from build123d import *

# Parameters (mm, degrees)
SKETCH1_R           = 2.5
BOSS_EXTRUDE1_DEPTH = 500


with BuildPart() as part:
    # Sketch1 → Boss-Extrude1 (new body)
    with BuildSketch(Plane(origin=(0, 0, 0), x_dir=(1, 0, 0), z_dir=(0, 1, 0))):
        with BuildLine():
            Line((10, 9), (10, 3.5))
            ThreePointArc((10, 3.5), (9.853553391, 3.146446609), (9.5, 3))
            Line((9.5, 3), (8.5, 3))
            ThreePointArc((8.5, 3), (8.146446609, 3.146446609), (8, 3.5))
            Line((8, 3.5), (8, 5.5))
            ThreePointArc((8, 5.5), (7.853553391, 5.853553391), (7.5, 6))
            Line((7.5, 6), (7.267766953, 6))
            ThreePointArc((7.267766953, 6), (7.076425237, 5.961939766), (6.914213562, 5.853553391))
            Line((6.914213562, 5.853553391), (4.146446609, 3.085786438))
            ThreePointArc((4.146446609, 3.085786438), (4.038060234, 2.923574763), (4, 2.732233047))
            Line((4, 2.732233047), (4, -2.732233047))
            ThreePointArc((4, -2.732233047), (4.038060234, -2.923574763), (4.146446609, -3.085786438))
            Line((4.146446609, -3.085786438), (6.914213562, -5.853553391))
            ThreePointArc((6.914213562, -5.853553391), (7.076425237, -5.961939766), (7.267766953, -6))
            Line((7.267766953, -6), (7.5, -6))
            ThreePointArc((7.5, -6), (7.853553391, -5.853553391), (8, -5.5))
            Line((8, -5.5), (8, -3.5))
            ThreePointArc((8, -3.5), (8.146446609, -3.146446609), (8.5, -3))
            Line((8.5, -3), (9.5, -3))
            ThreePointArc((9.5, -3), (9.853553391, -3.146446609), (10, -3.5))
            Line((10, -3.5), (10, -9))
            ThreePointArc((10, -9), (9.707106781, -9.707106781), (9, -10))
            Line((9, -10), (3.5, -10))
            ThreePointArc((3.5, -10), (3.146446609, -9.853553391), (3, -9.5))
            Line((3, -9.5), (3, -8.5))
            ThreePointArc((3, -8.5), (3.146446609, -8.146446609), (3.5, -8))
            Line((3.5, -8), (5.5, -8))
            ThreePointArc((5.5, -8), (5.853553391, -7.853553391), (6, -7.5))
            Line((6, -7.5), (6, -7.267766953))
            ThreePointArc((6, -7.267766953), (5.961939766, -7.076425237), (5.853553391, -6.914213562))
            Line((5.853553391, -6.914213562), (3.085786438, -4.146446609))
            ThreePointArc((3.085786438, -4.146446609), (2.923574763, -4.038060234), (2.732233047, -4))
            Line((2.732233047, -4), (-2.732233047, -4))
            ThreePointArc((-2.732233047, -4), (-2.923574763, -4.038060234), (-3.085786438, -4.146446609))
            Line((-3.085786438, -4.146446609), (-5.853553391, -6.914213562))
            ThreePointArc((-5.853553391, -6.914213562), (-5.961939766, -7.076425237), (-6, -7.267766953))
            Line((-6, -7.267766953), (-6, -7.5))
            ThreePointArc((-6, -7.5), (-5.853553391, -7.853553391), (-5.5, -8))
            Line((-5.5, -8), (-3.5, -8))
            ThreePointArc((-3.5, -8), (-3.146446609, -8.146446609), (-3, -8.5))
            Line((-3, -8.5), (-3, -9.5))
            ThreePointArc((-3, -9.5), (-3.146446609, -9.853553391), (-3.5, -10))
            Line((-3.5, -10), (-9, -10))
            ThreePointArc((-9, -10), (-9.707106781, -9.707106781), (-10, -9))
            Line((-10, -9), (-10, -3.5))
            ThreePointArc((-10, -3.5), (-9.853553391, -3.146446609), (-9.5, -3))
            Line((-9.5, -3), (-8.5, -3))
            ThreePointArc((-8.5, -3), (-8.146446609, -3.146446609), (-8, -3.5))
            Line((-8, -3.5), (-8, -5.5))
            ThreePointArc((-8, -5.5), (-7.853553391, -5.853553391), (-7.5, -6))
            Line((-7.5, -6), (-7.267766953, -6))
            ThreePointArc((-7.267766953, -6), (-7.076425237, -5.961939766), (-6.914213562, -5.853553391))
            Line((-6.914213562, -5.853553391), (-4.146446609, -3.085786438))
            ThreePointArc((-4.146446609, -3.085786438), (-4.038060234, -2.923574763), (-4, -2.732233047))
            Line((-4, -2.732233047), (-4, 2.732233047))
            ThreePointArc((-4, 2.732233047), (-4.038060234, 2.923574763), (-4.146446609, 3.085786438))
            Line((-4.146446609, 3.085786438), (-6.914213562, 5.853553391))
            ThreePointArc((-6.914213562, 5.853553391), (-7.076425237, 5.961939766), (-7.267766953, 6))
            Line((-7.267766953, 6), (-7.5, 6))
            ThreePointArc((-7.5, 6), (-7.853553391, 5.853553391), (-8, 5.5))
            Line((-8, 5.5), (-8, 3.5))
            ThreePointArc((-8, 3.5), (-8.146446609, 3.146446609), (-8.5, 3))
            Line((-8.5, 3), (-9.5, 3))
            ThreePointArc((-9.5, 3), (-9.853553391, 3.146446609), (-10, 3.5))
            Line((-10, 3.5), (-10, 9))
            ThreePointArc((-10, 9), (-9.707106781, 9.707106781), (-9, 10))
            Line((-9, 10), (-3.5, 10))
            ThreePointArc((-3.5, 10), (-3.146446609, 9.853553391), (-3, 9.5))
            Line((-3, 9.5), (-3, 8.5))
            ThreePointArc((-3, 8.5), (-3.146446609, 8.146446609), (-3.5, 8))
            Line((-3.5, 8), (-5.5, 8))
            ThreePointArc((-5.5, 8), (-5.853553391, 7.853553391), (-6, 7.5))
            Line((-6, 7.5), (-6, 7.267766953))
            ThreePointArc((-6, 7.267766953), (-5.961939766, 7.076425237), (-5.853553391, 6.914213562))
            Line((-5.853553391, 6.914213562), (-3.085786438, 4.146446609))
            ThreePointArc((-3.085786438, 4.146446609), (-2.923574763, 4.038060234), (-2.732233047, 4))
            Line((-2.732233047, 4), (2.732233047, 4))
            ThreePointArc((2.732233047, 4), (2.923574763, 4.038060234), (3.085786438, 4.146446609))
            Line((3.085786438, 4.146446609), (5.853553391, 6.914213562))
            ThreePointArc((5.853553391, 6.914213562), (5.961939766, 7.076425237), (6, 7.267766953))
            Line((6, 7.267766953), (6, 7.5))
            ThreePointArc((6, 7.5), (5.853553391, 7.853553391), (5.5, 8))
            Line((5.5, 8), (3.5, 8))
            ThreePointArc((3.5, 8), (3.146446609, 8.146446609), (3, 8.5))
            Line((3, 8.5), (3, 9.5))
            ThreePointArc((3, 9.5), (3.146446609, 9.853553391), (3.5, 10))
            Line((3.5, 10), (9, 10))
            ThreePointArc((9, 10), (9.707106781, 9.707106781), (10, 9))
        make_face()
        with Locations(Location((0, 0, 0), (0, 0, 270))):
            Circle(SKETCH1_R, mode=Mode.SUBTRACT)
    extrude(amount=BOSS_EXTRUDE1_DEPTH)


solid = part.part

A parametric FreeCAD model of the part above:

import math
import FreeCAD as App
import Part
import Sketcher

doc = App.newDocument("Part")
body = doc.addObject("PartDesign::Body", "Body")

# Sketch on XZ plane
sketch1 = body.newObject("Sketcher::SketchObject", "Sketch")
sketch1.AttachmentSupport = (doc.getObject("XZ_Plane"), [""])
sketch1.MapMode = "FlatFace"
sketch1.addGeometry([
    Part.LineSegment(App.Vector(10, -3.5, 0), App.Vector(10, -9, 0)),  # 0
    Part.ArcOfCircle(Part.Circle(App.Vector(9, -9, 0), App.Vector(0, 0, 1), 1), math.radians(-90), math.radians(0)),  # 1
    Part.LineSegment(App.Vector(9, -10, 0), App.Vector(3.5, -10, 0)),  # 2
    Part.ArcOfCircle(Part.Circle(App.Vector(3.5, -9.5, 0), App.Vector(0, 0, 1), 0.5), math.radians(180), math.radians(270)),  # 3
    Part.LineSegment(App.Vector(3, -9.5, 0), App.Vector(3, -8.5, 0)),  # 4
    Part.ArcOfCircle(Part.Circle(App.Vector(3.5, -8.5, 0), App.Vector(0, 0, 1), 0.5), math.radians(90), math.radians(180)),  # 5
    Part.LineSegment(App.Vector(3.5, -8, 0), App.Vector(5.5, -8, 0)),  # 6
    Part.ArcOfCircle(Part.Circle(App.Vector(5.5, -7.5, 0), App.Vector(0, 0, 1), 0.5), math.radians(-90), math.radians(0)),  # 7
    Part.LineSegment(App.Vector(6, -7.5, 0), App.Vector(6, -7.27, 0)),  # 8
    Part.ArcOfCircle(Part.Circle(App.Vector(5.5, -7.27, 0), App.Vector(0, 0, 1), 0.5), math.radians(0), math.radians(45)),  # 9
    Part.LineSegment(App.Vector(5.85, -6.91, 0), App.Vector(3.09, -4.15, 0)),  # 10
    Part.ArcOfCircle(Part.Circle(App.Vector(2.73, -4.5, 0), App.Vector(0, 0, 1), 0.5), math.radians(45), math.radians(90)),  # 11
    Part.LineSegment(App.Vector(2.73, -4, 0), App.Vector(-2.73, -4, 0)),  # 12
    Part.ArcOfCircle(Part.Circle(App.Vector(-2.73, -4.5, 0), App.Vector(0, 0, 1), 0.5), math.radians(90), math.radians(135)),  # 13
    Part.LineSegment(App.Vector(-3.09, -4.15, 0), App.Vector(-5.85, -6.91, 0)),  # 14
    Part.ArcOfCircle(Part.Circle(App.Vector(-5.5, -7.27, 0), App.Vector(0, 0, 1), 0.5), math.radians(135), math.radians(180)),  # 15
    Part.LineSegment(App.Vector(-6, -7.27, 0), App.Vector(-6, -7.5, 0)),  # 16
    Part.ArcOfCircle(Part.Circle(App.Vector(-5.5, -7.5, 0), App.Vector(0, 0, 1), 0.5), math.radians(180), math.radians(270)),  # 17
    Part.LineSegment(App.Vector(-5.5, -8, 0), App.Vector(-3.5, -8, 0)),  # 18
    Part.ArcOfCircle(Part.Circle(App.Vector(-3.5, -8.5, 0), App.Vector(0, 0, 1), 0.5), math.radians(0), math.radians(90)),  # 19
    Part.LineSegment(App.Vector(-3, -8.5, 0), App.Vector(-3, -9.5, 0)),  # 20
    Part.ArcOfCircle(Part.Circle(App.Vector(-3.5, -9.5, 0), App.Vector(0, 0, 1), 0.5), math.radians(-90), math.radians(0)),  # 21
    Part.LineSegment(App.Vector(-3.5, -10, 0), App.Vector(-9, -10, 0)),  # 22
    Part.ArcOfCircle(Part.Circle(App.Vector(-9, -9, 0), App.Vector(0, 0, 1), 1), math.radians(-180), math.radians(-90)),  # 23
    Part.LineSegment(App.Vector(-10, -9, 0), App.Vector(-10, -3.5, 0)),  # 24
    Part.ArcOfCircle(Part.Circle(App.Vector(-9.5, -3.5, 0), App.Vector(0, 0, 1), 0.5), math.radians(90), math.radians(180)),  # 25
    Part.LineSegment(App.Vector(-9.5, -3, 0), App.Vector(-8.5, -3, 0)),  # 26
    Part.ArcOfCircle(Part.Circle(App.Vector(-8.5, -3.5, 0), App.Vector(0, 0, 1), 0.5), math.radians(0), math.radians(90)),  # 27
    Part.LineSegment(App.Vector(-8, -3.5, 0), App.Vector(-8, -5.5, 0)),  # 28
    Part.ArcOfCircle(Part.Circle(App.Vector(-7.5, -5.5, 0), App.Vector(0, 0, 1), 0.5), math.radians(180), math.radians(270)),  # 29
    Part.LineSegment(App.Vector(-7.5, -6, 0), App.Vector(-7.27, -6, 0)),  # 30
    Part.ArcOfCircle(Part.Circle(App.Vector(-7.27, -5.5, 0), App.Vector(0, 0, 1), 0.5), math.radians(-90), math.radians(-45)),  # 31
    Part.LineSegment(App.Vector(-6.91, -5.85, 0), App.Vector(-4.15, -3.09, 0)),  # 32
    Part.ArcOfCircle(Part.Circle(App.Vector(-4.5, -2.73, 0), App.Vector(0, 0, 1), 0.5), math.radians(-45), math.radians(0)),  # 33
    Part.LineSegment(App.Vector(-4, -2.73, 0), App.Vector(-4, 2.73, 0)),  # 34
    Part.ArcOfCircle(Part.Circle(App.Vector(-4.5, 2.73, 0), App.Vector(0, 0, 1), 0.5), math.radians(0), math.radians(45)),  # 35
    Part.LineSegment(App.Vector(-4.15, 3.09, 0), App.Vector(-6.91, 5.85, 0)),  # 36
    Part.ArcOfCircle(Part.Circle(App.Vector(-7.27, 5.5, 0), App.Vector(0, 0, 1), 0.5), math.radians(45), math.radians(90)),  # 37
    Part.LineSegment(App.Vector(-7.27, 6, 0), App.Vector(-7.5, 6, 0)),  # 38
    Part.ArcOfCircle(Part.Circle(App.Vector(-7.5, 5.5, 0), App.Vector(0, 0, 1), 0.5), math.radians(90), math.radians(180)),  # 39
    Part.LineSegment(App.Vector(-8, 5.5, 0), App.Vector(-8, 3.5, 0)),  # 40
    Part.ArcOfCircle(Part.Circle(App.Vector(-8.5, 3.5, 0), App.Vector(0, 0, 1), 0.5), math.radians(-90), math.radians(0)),  # 41
    Part.LineSegment(App.Vector(-8.5, 3, 0), App.Vector(-9.5, 3, 0)),  # 42
    Part.ArcOfCircle(Part.Circle(App.Vector(-9.5, 3.5, 0), App.Vector(0, 0, 1), 0.5), math.radians(180), math.radians(270)),  # 43
    Part.LineSegment(App.Vector(-10, 3.5, 0), App.Vector(-10, 9, 0)),  # 44
    Part.ArcOfCircle(Part.Circle(App.Vector(-9, 9, 0), App.Vector(0, 0, 1), 1), math.radians(90), math.radians(180)),  # 45
    Part.LineSegment(App.Vector(-9, 10, 0), App.Vector(-3.5, 10, 0)),  # 46
    Part.ArcOfCircle(Part.Circle(App.Vector(-3.5, 9.5, 0), App.Vector(0, 0, 1), 0.5), math.radians(0), math.radians(90)),  # 47
    Part.LineSegment(App.Vector(-3, 9.5, 0), App.Vector(-3, 8.5, 0)),  # 48
    Part.ArcOfCircle(Part.Circle(App.Vector(-3.5, 8.5, 0), App.Vector(0, 0, 1), 0.5), math.radians(-90), math.radians(0)),  # 49
    Part.LineSegment(App.Vector(-3.5, 8, 0), App.Vector(-5.5, 8, 0)),  # 50
    Part.ArcOfCircle(Part.Circle(App.Vector(-5.5, 7.5, 0), App.Vector(0, 0, 1), 0.5), math.radians(90), math.radians(180)),  # 51
    Part.LineSegment(App.Vector(-6, 7.5, 0), App.Vector(-6, 7.27, 0)),  # 52
    Part.ArcOfCircle(Part.Circle(App.Vector(-5.5, 7.27, 0), App.Vector(0, 0, 1), 0.5), math.radians(-180), math.radians(-135)),  # 53
    Part.LineSegment(App.Vector(-5.85, 6.91, 0), App.Vector(-3.09, 4.15, 0)),  # 54
    Part.ArcOfCircle(Part.Circle(App.Vector(-2.73, 4.5, 0), App.Vector(0, 0, 1), 0.5), math.radians(-135), math.radians(-90)),  # 55
    Part.LineSegment(App.Vector(-2.73, 4, 0), App.Vector(2.73, 4, 0)),  # 56
    Part.ArcOfCircle(Part.Circle(App.Vector(2.73, 4.5, 0), App.Vector(0, 0, 1), 0.5), math.radians(-90), math.radians(-45)),  # 57
    Part.LineSegment(App.Vector(3.09, 4.15, 0), App.Vector(5.85, 6.91, 0)),  # 58
    Part.ArcOfCircle(Part.Circle(App.Vector(5.5, 7.27, 0), App.Vector(0, 0, 1), 0.5), math.radians(-45), math.radians(0)),  # 59
    Part.LineSegment(App.Vector(6, 7.27, 0), App.Vector(6, 7.5, 0)),  # 60
    Part.ArcOfCircle(Part.Circle(App.Vector(5.5, 7.5, 0), App.Vector(0, 0, 1), 0.5), math.radians(0), math.radians(90)),  # 61
    Part.LineSegment(App.Vector(5.5, 8, 0), App.Vector(3.5, 8, 0)),  # 62
    Part.ArcOfCircle(Part.Circle(App.Vector(3.5, 8.5, 0), App.Vector(0, 0, 1), 0.5), math.radians(180), math.radians(270)),  # 63
    Part.LineSegment(App.Vector(3, 8.5, 0), App.Vector(3, 9.5, 0)),  # 64
    Part.ArcOfCircle(Part.Circle(App.Vector(3.5, 9.5, 0), App.Vector(0, 0, 1), 0.5), math.radians(90), math.radians(180)),  # 65
    Part.LineSegment(App.Vector(3.5, 10, 0), App.Vector(9, 10, 0)),  # 66
    Part.ArcOfCircle(Part.Circle(App.Vector(9, 9, 0), App.Vector(0, 0, 1), 1), math.radians(0), math.radians(90)),  # 67
    Part.LineSegment(App.Vector(10, 9, 0), App.Vector(10, 3.5, 0)),  # 68
    Part.ArcOfCircle(Part.Circle(App.Vector(9.5, 3.5, 0), App.Vector(0, 0, 1), 0.5), math.radians(-90), math.radians(0)),  # 69
    Part.LineSegment(App.Vector(9.5, 3, 0), App.Vector(8.5, 3, 0)),  # 70
    Part.ArcOfCircle(Part.Circle(App.Vector(8.5, 3.5, 0), App.Vector(0, 0, 1), 0.5), math.radians(180), math.radians(270)),  # 71
    Part.LineSegment(App.Vector(8, 3.5, 0), App.Vector(8, 5.5, 0)),  # 72
    Part.ArcOfCircle(Part.Circle(App.Vector(7.5, 5.5, 0), App.Vector(0, 0, 1), 0.5), math.radians(0), math.radians(90)),  # 73
    Part.LineSegment(App.Vector(7.5, 6, 0), App.Vector(7.27, 6, 0)),  # 74
    Part.ArcOfCircle(Part.Circle(App.Vector(7.27, 5.5, 0), App.Vector(0, 0, 1), 0.5), math.radians(90), math.radians(135)),  # 75
    Part.LineSegment(App.Vector(6.91, 5.85, 0), App.Vector(4.15, 3.09, 0)),  # 76
    Part.ArcOfCircle(Part.Circle(App.Vector(4.5, 2.73, 0), App.Vector(0, 0, 1), 0.5), math.radians(135), math.radians(180)),  # 77
    Part.LineSegment(App.Vector(4, 2.73, 0), App.Vector(4, -2.73, 0)),  # 78
    Part.ArcOfCircle(Part.Circle(App.Vector(4.5, -2.73, 0), App.Vector(0, 0, 1), 0.5), math.radians(-180), math.radians(-135)),  # 79
    Part.LineSegment(App.Vector(4.15, -3.09, 0), App.Vector(6.91, -5.85, 0)),  # 80
    Part.ArcOfCircle(Part.Circle(App.Vector(7.27, -5.5, 0), App.Vector(0, 0, 1), 0.5), math.radians(-135), math.radians(-90)),  # 81
    Part.LineSegment(App.Vector(7.27, -6, 0), App.Vector(7.5, -6, 0)),  # 82
    Part.ArcOfCircle(Part.Circle(App.Vector(7.5, -5.5, 0), App.Vector(0, 0, 1), 0.5), math.radians(-90), math.radians(0)),  # 83
    Part.LineSegment(App.Vector(8, -5.5, 0), App.Vector(8, -3.5, 0)),  # 84
    Part.ArcOfCircle(Part.Circle(App.Vector(8.5, -3.5, 0), App.Vector(0, 0, 1), 0.5), math.radians(90), math.radians(180)),  # 85
    Part.LineSegment(App.Vector(8.5, -3, 0), App.Vector(9.5, -3, 0)),  # 86
    Part.ArcOfCircle(Part.Circle(App.Vector(9.5, -3.5, 0), App.Vector(0, 0, 1), 0.5), math.radians(0), math.radians(90)),  # 87
    Part.Circle(App.Vector(0, 0, 0), App.Vector(0, 0, 1), 2.5),  # 88
], False)
sketch1.addConstraint([
    Sketcher.Constraint("Tangent", 0, 2, 1, 2),
    Sketcher.Constraint("Tangent", 1, 1, 2, 1),
    Sketcher.Constraint("Tangent", 2, 2, 3, 2),
    Sketcher.Constraint("Tangent", 3, 1, 4, 1),
    Sketcher.Constraint("Tangent", 4, 2, 5, 2),
    Sketcher.Constraint("Tangent", 5, 1, 6, 1),
    Sketcher.Constraint("Tangent", 6, 2, 7, 1),
    Sketcher.Constraint("Tangent", 7, 2, 8, 1),
    Sketcher.Constraint("Tangent", 8, 2, 9, 1),
    Sketcher.Constraint("Tangent", 9, 2, 10, 1),
    Sketcher.Constraint("Tangent", 10, 2, 11, 1),
    Sketcher.Constraint("Tangent", 11, 2, 12, 1),
    Sketcher.Constraint("Tangent", 12, 2, 13, 1),
    Sketcher.Constraint("Tangent", 13, 2, 14, 1),
    Sketcher.Constraint("Tangent", 14, 2, 15, 1),
    Sketcher.Constraint("Tangent", 15, 2, 16, 1),
    Sketcher.Constraint("Tangent", 16, 2, 17, 1),
    Sketcher.Constraint("Tangent", 17, 2, 18, 1),
    Sketcher.Constraint("Tangent", 18, 2, 19, 2),
    Sketcher.Constraint("Tangent", 19, 1, 20, 1),
    Sketcher.Constraint("Tangent", 20, 2, 21, 2),
    Sketcher.Constraint("Tangent", 21, 1, 22, 1),
    Sketcher.Constraint("Tangent", 22, 2, 23, 2),
    Sketcher.Constraint("Tangent", 23, 1, 24, 1),
    Sketcher.Constraint("Tangent", 24, 2, 25, 2),
    Sketcher.Constraint("Tangent", 25, 1, 26, 1),
    Sketcher.Constraint("Tangent", 26, 2, 27, 2),
    Sketcher.Constraint("Tangent", 27, 1, 28, 1),
    Sketcher.Constraint("Tangent", 28, 2, 29, 1),
    Sketcher.Constraint("Tangent", 29, 2, 30, 1),
    Sketcher.Constraint("Tangent", 30, 2, 31, 1),
    Sketcher.Constraint("Tangent", 31, 2, 32, 1),
    Sketcher.Constraint("Tangent", 32, 2, 33, 1),
    Sketcher.Constraint("Tangent", 33, 2, 34, 1),
    Sketcher.Constraint("Tangent", 34, 2, 35, 1),
    Sketcher.Constraint("Tangent", 35, 2, 36, 1),
    Sketcher.Constraint("Tangent", 36, 2, 37, 1),
    Sketcher.Constraint("Tangent", 37, 2, 38, 1),
    Sketcher.Constraint("Tangent", 38, 2, 39, 1),
    Sketcher.Constraint("Tangent", 39, 2, 40, 1),
    Sketcher.Constraint("Tangent", 40, 2, 41, 2),
    Sketcher.Constraint("Tangent", 41, 1, 42, 1),
    Sketcher.Constraint("Tangent", 42, 2, 43, 2),
    Sketcher.Constraint("Tangent", 43, 1, 44, 1),
    Sketcher.Constraint("Tangent", 44, 2, 45, 2),
    Sketcher.Constraint("Tangent", 45, 1, 46, 1),
    Sketcher.Constraint("Tangent", 46, 2, 47, 2),
    Sketcher.Constraint("Tangent", 47, 1, 48, 1),
    Sketcher.Constraint("Tangent", 48, 2, 49, 2),
    Sketcher.Constraint("Tangent", 49, 1, 50, 1),
    Sketcher.Constraint("Tangent", 50, 2, 51, 1),
    Sketcher.Constraint("Tangent", 51, 2, 52, 1),
    Sketcher.Constraint("Tangent", 52, 2, 53, 1),
    Sketcher.Constraint("Tangent", 53, 2, 54, 1),
    Sketcher.Constraint("Tangent", 54, 2, 55, 1),
    Sketcher.Constraint("Tangent", 55, 2, 56, 1),
    Sketcher.Constraint("Tangent", 56, 2, 57, 1),
    Sketcher.Constraint("Tangent", 57, 2, 58, 1),
    Sketcher.Constraint("Tangent", 58, 2, 59, 1),
    Sketcher.Constraint("Tangent", 59, 2, 60, 1),
    Sketcher.Constraint("Tangent", 60, 2, 61, 1),
    Sketcher.Constraint("Tangent", 61, 2, 62, 1),
    Sketcher.Constraint("Tangent", 62, 2, 63, 2),
    Sketcher.Constraint("Tangent", 63, 1, 64, 1),
    Sketcher.Constraint("Tangent", 64, 2, 65, 2),
    Sketcher.Constraint("Tangent", 65, 1, 66, 1),
    Sketcher.Constraint("Tangent", 66, 2, 67, 2),
    Sketcher.Constraint("Tangent", 67, 1, 68, 1),
    Sketcher.Constraint("Tangent", 68, 2, 69, 2),
    Sketcher.Constraint("Tangent", 69, 1, 70, 1),
    Sketcher.Constraint("Tangent", 70, 2, 71, 2),
    Sketcher.Constraint("Tangent", 71, 1, 72, 1),
    Sketcher.Constraint("Tangent", 72, 2, 73, 1),
    Sketcher.Constraint("Tangent", 73, 2, 74, 1),
    Sketcher.Constraint("Tangent", 74, 2, 75, 1),
    Sketcher.Constraint("Tangent", 75, 2, 76, 1),
    Sketcher.Constraint("Tangent", 76, 2, 77, 1),
    Sketcher.Constraint("Tangent", 77, 2, 78, 1),
    Sketcher.Constraint("Tangent", 78, 2, 79, 1),
    Sketcher.Constraint("Tangent", 79, 2, 80, 1),
    Sketcher.Constraint("Tangent", 80, 2, 81, 1),
    Sketcher.Constraint("Tangent", 81, 2, 82, 1),
    Sketcher.Constraint("Tangent", 82, 2, 83, 1),
    Sketcher.Constraint("Tangent", 83, 2, 84, 1),
    Sketcher.Constraint("Tangent", 84, 2, 85, 2),
    Sketcher.Constraint("Tangent", 85, 1, 86, 1),
    Sketcher.Constraint("Tangent", 86, 2, 87, 2),
    Sketcher.Constraint("Tangent", 87, 1, 0, 1),
    Sketcher.Constraint("Vertical", 0),
    Sketcher.Constraint("Horizontal", 2),
    Sketcher.Constraint("Vertical", 4),
    Sketcher.Constraint("Horizontal", 6),
    Sketcher.Constraint("Vertical", 8),
    Sketcher.Constraint("Horizontal", 12),
    Sketcher.Constraint("Vertical", 16),
    Sketcher.Constraint("Horizontal", 18),
    Sketcher.Constraint("Vertical", 20),
    Sketcher.Constraint("Horizontal", 22),
    Sketcher.Constraint("Vertical", 24),
    Sketcher.Constraint("Horizontal", 26),
    Sketcher.Constraint("Vertical", 28),
    Sketcher.Constraint("Horizontal", 30),
    Sketcher.Constraint("Vertical", 34),
    Sketcher.Constraint("Horizontal", 38),
    Sketcher.Constraint("Vertical", 40),
    Sketcher.Constraint("Horizontal", 42),
    Sketcher.Constraint("Vertical", 44),
    Sketcher.Constraint("Horizontal", 46),
    Sketcher.Constraint("Vertical", 48),
    Sketcher.Constraint("Horizontal", 50),
    Sketcher.Constraint("Vertical", 52),
    Sketcher.Constraint("Horizontal", 56),
    Sketcher.Constraint("Vertical", 60),
    Sketcher.Constraint("Horizontal", 62),
    Sketcher.Constraint("Vertical", 64),
    Sketcher.Constraint("Horizontal", 66),
    Sketcher.Constraint("Vertical", 68),
    Sketcher.Constraint("Horizontal", 70),
    Sketcher.Constraint("Vertical", 72),
    Sketcher.Constraint("Horizontal", 74),
    Sketcher.Constraint("Vertical", 78),
    Sketcher.Constraint("Horizontal", 82),
    Sketcher.Constraint("Vertical", 84),
    Sketcher.Constraint("Horizontal", 86),
    Sketcher.Constraint("Coincident", 88, 3, -1, 1),
    Sketcher.Constraint("Equal", 3, 5),
    Sketcher.Constraint("Equal", 5, 7),
    Sketcher.Constraint("Equal", 7, 9),
    Sketcher.Constraint("Equal", 9, 11),
    Sketcher.Constraint("Equal", 11, 13),
    Sketcher.Constraint("Equal", 13, 15),
    Sketcher.Constraint("Equal", 15, 17),
    Sketcher.Constraint("Equal", 17, 19),
    Sketcher.Constraint("Equal", 19, 21),
    Sketcher.Constraint("Equal", 1, 23),
    Sketcher.Constraint("Equal", 21, 25),
    Sketcher.Constraint("Equal", 25, 27),
    Sketcher.Constraint("Equal", 27, 29),
    Sketcher.Constraint("Equal", 29, 31),
    Sketcher.Constraint("Equal", 31, 33),
    Sketcher.Constraint("Equal", 33, 35),
    Sketcher.Constraint("Equal", 35, 37),
    Sketcher.Constraint("Equal", 37, 39),
    Sketcher.Constraint("Equal", 39, 41),
    Sketcher.Constraint("Equal", 41, 43),
    Sketcher.Constraint("Equal", 23, 45),
    Sketcher.Constraint("Equal", 43, 47),
    Sketcher.Constraint("Equal", 47, 49),
    Sketcher.Constraint("Equal", 49, 51),
    Sketcher.Constraint("Equal", 51, 53),
    Sketcher.Constraint("Equal", 53, 55),
    Sketcher.Constraint("Equal", 55, 57),
    Sketcher.Constraint("Equal", 57, 59),
    Sketcher.Constraint("Equal", 59, 61),
    Sketcher.Constraint("Equal", 61, 63),
    Sketcher.Constraint("Equal", 63, 65),
    Sketcher.Constraint("Equal", 45, 67),
    Sketcher.Constraint("Equal", 65, 69),
    Sketcher.Constraint("Equal", 69, 71),
    Sketcher.Constraint("Equal", 71, 73),
    Sketcher.Constraint("Equal", 73, 75),
    Sketcher.Constraint("Equal", 75, 77),
    Sketcher.Constraint("Equal", 77, 79),
    Sketcher.Constraint("Equal", 79, 81),
    Sketcher.Constraint("Equal", 81, 83),
    Sketcher.Constraint("Equal", 83, 85),
    Sketcher.Constraint("Equal", 85, 87),
    Sketcher.Constraint("Symmetric", 1, 3, 45, 3, -1, 1),
    Sketcher.Constraint("Symmetric", 5, 3, 49, 3, -1, 1),
    Sketcher.Constraint("Symmetric", 9, 3, 53, 3, -1, 1),
    Sketcher.Constraint("Symmetric", 11, 3, 55, 3, -1, 1),
    Sketcher.Constraint("Symmetric", 15, 3, 59, 3, -1, 1),
    Sketcher.Constraint("Symmetric", 19, 3, 63, 3, -1, 1),
    Sketcher.Constraint("Symmetric", 23, 3, 67, 3, -1, 1),
    Sketcher.Constraint("Symmetric", 27, 3, 71, 3, -1, 1),
    Sketcher.Constraint("Symmetric", 31, 3, 75, 3, -1, 1),
    Sketcher.Constraint("Symmetric", 33, 3, 77, 3, -1, 1),
    Sketcher.Constraint("Symmetric", 37, 3, 81, 3, -1, 1),
    Sketcher.Constraint("Symmetric", 41, 3, 85, 3, -1, 1),
    Sketcher.Constraint("Symmetric", 9, 3, 15, 3, -2),
    Sketcher.Constraint("Symmetric", 5, 3, 19, 3, -2),
    Sketcher.Constraint("Symmetric", 1, 3, 23, 3, -2),
    Sketcher.Constraint("Symmetric", 41, 3, 71, 3, -2),
    Sketcher.Constraint("Symmetric", 37, 3, 75, 3, -2),
    Sketcher.Constraint("Perpendicular", 10, 14),
    Sketcher.Constraint("Parallel", 14, 32),
    Sketcher.Constraint("Perpendicular", 32, 36),
    Sketcher.Constraint("Perpendicular", 54, 58),
    Sketcher.Constraint("Perpendicular", 76, 80),
    Sketcher.Constraint("Horizontal", 35, 3, 77, 3),
    Sketcher.Constraint("Equal", 66, 0),
    Sketcher.Constraint("Equal", 86, 4),
    Sketcher.Constraint("Equal", 82, 8),
    Sketcher.Constraint("Equal", 62, 28),
    Sketcher.Constraint("Equal", 56, 34),
    Sketcher.Constraint("Equal", 14, 32),
    Sketcher.Constraint("Diameter", 88, 5.0),
    Sketcher.Constraint("Radius", 1, 1.0),
    Sketcher.Constraint("Radius", 3, 0.5),
    Sketcher.Constraint("DistanceX", 6, 1, 6, 2, 2.0),
    Sketcher.Constraint("DistanceX", 26, 1, 26, 2, 1.0),
    Sketcher.Constraint("DistanceX", 2, 2, 2, 1, 5.5),
    Sketcher.Constraint("DistanceX", -1, 1, 1, 3, 9.0),
    Sketcher.Constraint("DistanceY", 11, 2, -1, 1, 4.0),
    Sketcher.Constraint("DistanceX", 12, 2, 12, 1, 5.464466),
])
pad1 = body.newObject("PartDesign::Pad", "Pad")
pad1.Profile = sketch1
pad1.Length = 500
pad1.Reversed = True

doc.recompute()
